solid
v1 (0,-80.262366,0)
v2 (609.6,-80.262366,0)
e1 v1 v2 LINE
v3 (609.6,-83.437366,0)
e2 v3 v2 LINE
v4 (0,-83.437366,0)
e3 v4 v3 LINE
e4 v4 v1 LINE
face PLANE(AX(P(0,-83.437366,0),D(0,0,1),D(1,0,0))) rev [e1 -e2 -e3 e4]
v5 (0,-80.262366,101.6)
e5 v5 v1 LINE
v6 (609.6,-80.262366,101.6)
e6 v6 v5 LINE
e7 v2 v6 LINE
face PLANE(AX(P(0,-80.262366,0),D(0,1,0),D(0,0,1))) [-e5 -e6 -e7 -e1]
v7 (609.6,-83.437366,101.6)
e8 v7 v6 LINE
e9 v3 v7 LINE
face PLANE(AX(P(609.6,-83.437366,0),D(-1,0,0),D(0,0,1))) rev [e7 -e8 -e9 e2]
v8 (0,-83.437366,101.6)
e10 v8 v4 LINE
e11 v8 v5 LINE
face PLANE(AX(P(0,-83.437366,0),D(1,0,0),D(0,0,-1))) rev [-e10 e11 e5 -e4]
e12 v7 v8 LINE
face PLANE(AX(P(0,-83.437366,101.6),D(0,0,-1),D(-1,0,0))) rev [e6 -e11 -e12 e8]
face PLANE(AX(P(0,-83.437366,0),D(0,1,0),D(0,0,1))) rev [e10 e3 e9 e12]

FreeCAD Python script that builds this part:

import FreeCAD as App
import Part
import Sketcher
from FreeCAD import Vector
Q = App.Units.Quantity


def add_polygon(sketch, points):
    """Adds a closed chain of lines whose ends are joined by coincident constraints."""
    first, n = sketch.GeometryCount, len(points)
    for a, b in zip(points, points[1:] + points[:1]):
        sketch.addGeometry(Part.LineSegment(App.Vector(*a, 0), App.Vector(*b, 0)), False)
    for i in range(n):
        sketch.addConstraint(Sketcher.Constraint("Coincident", first + i, 2, first + (i + 1) % n, 1))

doc = App.newDocument("Part")
body = doc.addObject("PartDesign::Body", "Body")

# Sketch on XZ plane
sketch1 = body.newObject("Sketcher::SketchObject", "Sketch")
sketch1.AttachmentSupport = (doc.getObject("XZ_Plane"), [""])
sketch1.MapMode = "FlatFace"
sketch1.AttachmentOffset = App.Placement(Vector(0, 0, 80.262366), App.Rotation())
add_polygon(sketch1, [(0, 102), (0, 0), (610, 0), (610, 102)])  # lines 0-3
sketch1.addConstraint([
    Sketcher.Constraint("Vertical", 0),
    Sketcher.Constraint("Horizontal", 1),
    Sketcher.Constraint("Vertical", 2),
    Sketcher.Constraint("Horizontal", 3),
    Sketcher.Constraint("Coincident", 0, 2, -1, 1),
    Sketcher.Constraint("DistanceX", 1, 1, 1, 2, Q("24 in")),
    Sketcher.Constraint("DistanceY", 0, 2, 0, 1, Q("4 in")),
])
pad1 = body.newObject("PartDesign::Pad", "Pad")
pad1.Profile = sketch1
pad1.Length = Q("0.125 in")

doc.recompute()
